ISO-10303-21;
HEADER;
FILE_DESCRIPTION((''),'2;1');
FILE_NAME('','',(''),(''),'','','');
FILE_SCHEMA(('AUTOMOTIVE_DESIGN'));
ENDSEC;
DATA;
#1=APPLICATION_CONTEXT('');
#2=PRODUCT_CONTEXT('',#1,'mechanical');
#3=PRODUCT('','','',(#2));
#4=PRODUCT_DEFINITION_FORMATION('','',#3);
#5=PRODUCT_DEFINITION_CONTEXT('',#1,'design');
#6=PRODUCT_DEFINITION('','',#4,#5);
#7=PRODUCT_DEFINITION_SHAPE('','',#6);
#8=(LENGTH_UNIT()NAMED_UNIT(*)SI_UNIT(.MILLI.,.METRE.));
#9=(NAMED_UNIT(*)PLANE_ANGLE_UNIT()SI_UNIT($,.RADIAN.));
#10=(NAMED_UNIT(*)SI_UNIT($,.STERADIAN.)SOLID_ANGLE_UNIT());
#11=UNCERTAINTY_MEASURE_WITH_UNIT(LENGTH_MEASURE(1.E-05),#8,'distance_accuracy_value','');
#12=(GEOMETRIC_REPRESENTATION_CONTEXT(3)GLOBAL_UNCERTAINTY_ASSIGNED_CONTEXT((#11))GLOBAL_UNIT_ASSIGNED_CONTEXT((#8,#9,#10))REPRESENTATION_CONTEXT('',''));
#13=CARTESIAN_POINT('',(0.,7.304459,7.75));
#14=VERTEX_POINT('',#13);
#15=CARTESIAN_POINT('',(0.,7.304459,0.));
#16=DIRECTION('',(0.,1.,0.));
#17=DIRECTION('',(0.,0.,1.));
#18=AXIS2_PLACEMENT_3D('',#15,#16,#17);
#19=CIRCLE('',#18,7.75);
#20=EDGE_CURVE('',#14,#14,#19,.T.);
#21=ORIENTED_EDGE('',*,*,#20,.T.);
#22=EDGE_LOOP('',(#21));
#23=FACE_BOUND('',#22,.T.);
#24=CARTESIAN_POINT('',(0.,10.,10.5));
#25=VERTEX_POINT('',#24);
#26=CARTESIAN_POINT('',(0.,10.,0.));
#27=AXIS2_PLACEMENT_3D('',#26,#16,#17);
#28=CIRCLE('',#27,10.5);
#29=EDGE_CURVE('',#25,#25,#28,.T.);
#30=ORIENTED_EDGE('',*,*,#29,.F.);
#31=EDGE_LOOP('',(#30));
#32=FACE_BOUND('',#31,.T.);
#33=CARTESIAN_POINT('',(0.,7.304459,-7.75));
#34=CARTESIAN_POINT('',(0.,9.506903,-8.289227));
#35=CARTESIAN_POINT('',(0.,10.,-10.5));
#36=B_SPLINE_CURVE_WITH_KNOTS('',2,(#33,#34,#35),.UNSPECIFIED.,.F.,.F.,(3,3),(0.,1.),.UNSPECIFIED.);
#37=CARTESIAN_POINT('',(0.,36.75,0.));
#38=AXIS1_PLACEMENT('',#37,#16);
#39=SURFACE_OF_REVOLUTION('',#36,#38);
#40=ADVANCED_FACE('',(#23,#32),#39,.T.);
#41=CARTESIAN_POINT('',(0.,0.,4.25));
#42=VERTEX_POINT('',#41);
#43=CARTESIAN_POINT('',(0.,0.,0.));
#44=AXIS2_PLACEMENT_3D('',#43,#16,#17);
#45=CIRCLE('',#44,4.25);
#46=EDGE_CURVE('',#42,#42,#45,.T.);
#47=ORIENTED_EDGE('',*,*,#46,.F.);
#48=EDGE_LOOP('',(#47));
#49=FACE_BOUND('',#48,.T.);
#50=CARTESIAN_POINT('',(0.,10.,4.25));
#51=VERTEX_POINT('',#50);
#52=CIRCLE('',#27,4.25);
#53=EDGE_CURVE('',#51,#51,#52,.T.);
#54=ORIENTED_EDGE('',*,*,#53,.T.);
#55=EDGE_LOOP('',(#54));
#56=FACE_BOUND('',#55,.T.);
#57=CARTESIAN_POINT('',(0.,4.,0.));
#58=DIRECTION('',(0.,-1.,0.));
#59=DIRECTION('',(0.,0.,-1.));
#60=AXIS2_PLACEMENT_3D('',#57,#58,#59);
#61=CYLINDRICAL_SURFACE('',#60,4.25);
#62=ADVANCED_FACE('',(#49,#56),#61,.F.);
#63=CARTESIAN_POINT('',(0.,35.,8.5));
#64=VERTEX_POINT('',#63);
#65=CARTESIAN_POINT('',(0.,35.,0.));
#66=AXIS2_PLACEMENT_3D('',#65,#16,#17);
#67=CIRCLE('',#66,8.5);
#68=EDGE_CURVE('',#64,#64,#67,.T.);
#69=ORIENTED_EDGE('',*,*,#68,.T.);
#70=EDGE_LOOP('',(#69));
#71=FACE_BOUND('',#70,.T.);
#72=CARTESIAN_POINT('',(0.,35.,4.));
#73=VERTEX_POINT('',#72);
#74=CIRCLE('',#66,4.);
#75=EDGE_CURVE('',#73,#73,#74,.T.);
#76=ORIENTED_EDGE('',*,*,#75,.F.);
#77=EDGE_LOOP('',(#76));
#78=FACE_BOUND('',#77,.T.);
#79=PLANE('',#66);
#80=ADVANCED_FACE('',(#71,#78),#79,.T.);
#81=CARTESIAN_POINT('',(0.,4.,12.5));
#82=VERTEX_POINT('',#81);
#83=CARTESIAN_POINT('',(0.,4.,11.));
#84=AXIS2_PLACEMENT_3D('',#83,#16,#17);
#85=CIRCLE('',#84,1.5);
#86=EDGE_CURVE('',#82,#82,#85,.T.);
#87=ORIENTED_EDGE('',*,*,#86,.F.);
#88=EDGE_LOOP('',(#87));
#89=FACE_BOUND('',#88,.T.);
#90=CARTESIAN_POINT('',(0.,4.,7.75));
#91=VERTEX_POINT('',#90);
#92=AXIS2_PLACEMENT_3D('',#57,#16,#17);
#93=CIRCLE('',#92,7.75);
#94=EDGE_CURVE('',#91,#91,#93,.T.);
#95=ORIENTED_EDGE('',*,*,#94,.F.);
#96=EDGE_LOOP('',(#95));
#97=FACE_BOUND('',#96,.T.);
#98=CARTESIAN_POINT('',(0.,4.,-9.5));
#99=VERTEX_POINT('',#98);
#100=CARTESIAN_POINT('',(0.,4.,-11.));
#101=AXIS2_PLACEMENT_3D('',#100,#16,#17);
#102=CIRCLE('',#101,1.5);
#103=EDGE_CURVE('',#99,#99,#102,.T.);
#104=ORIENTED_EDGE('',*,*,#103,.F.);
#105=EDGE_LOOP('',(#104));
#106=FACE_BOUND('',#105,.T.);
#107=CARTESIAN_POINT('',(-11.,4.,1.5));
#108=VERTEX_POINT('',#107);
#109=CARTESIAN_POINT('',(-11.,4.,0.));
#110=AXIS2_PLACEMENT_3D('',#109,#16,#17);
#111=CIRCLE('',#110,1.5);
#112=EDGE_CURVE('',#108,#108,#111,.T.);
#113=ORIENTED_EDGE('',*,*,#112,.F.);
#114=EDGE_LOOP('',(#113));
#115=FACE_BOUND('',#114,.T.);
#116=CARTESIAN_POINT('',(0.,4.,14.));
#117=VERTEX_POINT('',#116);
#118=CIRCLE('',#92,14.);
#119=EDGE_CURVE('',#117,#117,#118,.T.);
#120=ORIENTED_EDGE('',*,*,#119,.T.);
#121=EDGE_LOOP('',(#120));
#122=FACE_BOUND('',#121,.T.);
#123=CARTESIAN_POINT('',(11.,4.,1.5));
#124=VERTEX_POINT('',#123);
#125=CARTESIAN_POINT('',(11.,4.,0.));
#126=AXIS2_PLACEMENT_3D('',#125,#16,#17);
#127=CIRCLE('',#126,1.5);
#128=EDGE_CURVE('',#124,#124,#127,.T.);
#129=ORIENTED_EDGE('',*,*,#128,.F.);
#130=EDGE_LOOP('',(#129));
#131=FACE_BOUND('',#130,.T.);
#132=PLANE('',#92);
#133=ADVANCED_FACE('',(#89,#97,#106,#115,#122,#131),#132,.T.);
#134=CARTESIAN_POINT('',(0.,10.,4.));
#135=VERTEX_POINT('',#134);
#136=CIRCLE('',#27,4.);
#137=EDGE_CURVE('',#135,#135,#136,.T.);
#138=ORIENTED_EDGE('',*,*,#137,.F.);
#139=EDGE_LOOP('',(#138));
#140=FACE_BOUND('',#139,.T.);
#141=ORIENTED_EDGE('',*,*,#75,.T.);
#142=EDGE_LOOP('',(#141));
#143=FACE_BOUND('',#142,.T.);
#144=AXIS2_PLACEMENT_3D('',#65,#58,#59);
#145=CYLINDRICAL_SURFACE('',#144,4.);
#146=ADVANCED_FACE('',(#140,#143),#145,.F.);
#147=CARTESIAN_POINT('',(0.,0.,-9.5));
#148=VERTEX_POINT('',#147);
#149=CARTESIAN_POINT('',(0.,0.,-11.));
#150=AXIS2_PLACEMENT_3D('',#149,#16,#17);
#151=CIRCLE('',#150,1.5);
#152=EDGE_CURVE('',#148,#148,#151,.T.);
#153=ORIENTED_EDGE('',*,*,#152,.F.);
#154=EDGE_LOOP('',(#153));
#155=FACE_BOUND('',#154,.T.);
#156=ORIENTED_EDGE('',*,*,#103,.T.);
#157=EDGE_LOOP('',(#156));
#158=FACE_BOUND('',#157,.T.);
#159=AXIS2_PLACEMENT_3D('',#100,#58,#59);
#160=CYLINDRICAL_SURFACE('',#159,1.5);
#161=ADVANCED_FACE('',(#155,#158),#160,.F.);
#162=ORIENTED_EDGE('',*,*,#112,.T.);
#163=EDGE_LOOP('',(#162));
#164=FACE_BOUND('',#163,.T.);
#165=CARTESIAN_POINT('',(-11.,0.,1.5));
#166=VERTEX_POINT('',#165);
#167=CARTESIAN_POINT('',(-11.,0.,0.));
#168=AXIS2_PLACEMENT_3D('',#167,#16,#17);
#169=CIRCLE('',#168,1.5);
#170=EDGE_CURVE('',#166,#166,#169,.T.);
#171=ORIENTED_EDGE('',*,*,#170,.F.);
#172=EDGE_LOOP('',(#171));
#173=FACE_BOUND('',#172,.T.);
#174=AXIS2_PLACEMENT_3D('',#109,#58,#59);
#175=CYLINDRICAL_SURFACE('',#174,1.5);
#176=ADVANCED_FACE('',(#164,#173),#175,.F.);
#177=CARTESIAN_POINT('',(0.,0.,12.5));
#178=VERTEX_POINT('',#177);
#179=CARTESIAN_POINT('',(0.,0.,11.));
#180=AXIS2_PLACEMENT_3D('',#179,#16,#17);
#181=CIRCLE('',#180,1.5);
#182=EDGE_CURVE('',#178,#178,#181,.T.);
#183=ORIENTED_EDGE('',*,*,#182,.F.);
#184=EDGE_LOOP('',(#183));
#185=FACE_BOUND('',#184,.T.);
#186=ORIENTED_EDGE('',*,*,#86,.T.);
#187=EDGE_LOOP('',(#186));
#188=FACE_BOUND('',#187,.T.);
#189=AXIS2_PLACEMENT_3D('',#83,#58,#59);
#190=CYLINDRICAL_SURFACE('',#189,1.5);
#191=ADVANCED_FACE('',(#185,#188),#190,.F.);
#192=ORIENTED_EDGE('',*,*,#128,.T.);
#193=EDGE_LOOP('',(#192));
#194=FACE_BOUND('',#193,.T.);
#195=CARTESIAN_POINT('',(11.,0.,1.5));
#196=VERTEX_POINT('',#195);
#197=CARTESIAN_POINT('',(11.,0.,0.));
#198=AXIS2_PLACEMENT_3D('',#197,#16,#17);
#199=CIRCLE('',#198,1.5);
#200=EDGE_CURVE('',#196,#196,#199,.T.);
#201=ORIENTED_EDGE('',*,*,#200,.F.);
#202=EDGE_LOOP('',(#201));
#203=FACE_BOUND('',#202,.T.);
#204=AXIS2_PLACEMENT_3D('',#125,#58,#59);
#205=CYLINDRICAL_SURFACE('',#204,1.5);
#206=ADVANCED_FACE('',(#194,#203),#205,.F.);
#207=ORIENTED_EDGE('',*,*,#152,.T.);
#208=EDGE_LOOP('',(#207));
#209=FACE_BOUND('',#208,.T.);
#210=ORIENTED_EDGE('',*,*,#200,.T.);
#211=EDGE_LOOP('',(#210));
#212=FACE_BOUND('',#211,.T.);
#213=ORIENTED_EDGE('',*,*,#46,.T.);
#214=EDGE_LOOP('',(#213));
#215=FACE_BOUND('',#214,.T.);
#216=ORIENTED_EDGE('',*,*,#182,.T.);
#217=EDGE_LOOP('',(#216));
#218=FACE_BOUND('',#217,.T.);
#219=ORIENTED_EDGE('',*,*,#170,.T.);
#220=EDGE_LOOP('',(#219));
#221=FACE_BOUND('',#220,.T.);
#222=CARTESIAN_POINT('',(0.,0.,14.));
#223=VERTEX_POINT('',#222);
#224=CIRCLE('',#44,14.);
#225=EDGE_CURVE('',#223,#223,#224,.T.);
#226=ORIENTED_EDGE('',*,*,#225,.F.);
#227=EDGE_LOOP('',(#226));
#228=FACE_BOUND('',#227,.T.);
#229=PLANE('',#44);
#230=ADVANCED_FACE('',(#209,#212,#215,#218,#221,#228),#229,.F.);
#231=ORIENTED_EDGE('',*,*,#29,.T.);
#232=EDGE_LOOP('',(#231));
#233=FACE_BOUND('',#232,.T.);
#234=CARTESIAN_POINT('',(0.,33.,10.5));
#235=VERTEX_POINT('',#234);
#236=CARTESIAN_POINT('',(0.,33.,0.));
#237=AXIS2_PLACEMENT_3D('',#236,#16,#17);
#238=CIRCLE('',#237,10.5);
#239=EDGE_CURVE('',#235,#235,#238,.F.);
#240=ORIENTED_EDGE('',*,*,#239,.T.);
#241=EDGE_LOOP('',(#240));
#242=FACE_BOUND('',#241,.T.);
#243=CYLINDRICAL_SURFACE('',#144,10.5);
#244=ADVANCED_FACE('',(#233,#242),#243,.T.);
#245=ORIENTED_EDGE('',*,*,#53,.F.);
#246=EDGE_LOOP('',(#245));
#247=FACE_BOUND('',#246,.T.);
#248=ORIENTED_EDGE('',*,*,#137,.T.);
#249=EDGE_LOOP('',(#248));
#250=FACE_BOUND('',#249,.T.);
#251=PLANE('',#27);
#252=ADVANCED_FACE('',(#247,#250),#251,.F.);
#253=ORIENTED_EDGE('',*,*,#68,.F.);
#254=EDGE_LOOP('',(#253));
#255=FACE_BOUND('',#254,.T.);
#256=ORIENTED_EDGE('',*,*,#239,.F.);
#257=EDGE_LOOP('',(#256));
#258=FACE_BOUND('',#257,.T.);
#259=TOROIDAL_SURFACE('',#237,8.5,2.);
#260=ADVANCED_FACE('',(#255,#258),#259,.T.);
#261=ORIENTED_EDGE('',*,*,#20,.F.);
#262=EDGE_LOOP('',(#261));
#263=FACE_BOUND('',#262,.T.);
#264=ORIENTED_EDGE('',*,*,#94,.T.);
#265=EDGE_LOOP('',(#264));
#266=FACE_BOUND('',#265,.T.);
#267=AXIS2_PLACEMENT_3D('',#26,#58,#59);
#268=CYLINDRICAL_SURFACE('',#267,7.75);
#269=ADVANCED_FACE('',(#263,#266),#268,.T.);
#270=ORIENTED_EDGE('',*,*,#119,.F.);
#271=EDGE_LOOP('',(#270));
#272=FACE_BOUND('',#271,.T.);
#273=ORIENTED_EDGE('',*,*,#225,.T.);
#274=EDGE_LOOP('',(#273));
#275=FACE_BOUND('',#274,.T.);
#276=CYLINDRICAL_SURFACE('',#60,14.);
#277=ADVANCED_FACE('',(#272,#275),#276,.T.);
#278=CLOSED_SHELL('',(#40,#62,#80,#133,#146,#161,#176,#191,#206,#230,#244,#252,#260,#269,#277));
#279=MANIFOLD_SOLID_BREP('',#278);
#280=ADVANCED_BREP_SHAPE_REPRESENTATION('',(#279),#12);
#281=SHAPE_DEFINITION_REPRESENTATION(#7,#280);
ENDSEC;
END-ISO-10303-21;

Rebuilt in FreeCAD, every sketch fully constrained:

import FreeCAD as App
import Part
import Sketcher

V = App.Vector


def edges_at(feature, points):
    """Names of the edges that pass closest to the given points."""
    edges = feature.Shape.Edges
    near = lambda p: min(range(len(edges)), key=lambda i: edges[i].distToShape(Part.Vertex(*p))[0])
    return sorted({f"Edge{near(p) + 1}" for p in points})

doc = App.newDocument("Part")
params = doc.addObject("Spreadsheet::Sheet", "Params")
for row, (alias, value) in enumerate([
    ("sketch1_diameter", "28 mm"),
    ("sketch1_diameter2", "3 mm"),
    ("sketch1_diameter3", "8.5 mm"),
    ("pad1_length", "4 mm"),
    ("sketch2_diameter", "15.5 mm"),
    ("sketch2_diameter2", "8.5 mm"),
    ("pad2_length", "6 mm"),
    ("sketch3_diameter", "21 mm"),
    ("sketch3_diameter2", "8 mm"),
    ("pad3_length", "25 mm"),
    ("revolution_angle", "360 deg"),
    ("fillet_radius", "2 mm"),
], start=1):
    params.set(f"A{row}", alias)
    params.set(f"B{row}", "=" + value)
    params.setAlias(f"B{row}", alias)

body = doc.addObject("PartDesign::Body", "Body")

# Sketch on XZ plane
sketch1 = body.newObject("Sketcher::SketchObject", "Sketch")
sketch1.AttachmentSupport = (doc.getObject("XZ_Plane"), [""])
sketch1.MapMode = "FlatFace"
sketch1.addGeometry([
    Part.Circle(V(0, 0, 0), V(0, 0, 1), 14),  # 0
    Part.Circle(V(0, 11, 0), V(0, 0, 1), 1.5),  # 1
    Part.Circle(V(-11, 0, 0), V(0, 0, 1), 1.5),  # 2
    Part.Circle(V(0, 0, 0), V(0, 0, 1), 4.2),  # 3
    Part.Circle(V(11, 0, 0), V(0, 0, 1), 1.5),  # 4
    Part.Circle(V(0, -11, 0), V(0, 0, 1), 1.5),  # 5
], False)
sketch1.addConstraint([
    Sketcher.Constraint("Coincident", 0, 3, -1, 1),
    Sketcher.Constraint("Coincident", 3, 3, -1, 1),
    Sketcher.Constraint("Equal", 1, 2),
    Sketcher.Constraint("Equal", 2, 4),
    Sketcher.Constraint("Equal", 4, 5),
    Sketcher.Constraint("Symmetric", 2, 3, 4, 3, -1, 1),
    Sketcher.Constraint("Symmetric", 1, 3, 5, 3, -1, 1),
    Sketcher.Constraint("PointOnObject", 1, 3, -2),
    Sketcher.Constraint("PointOnObject", 2, 3, -1),
    Sketcher.Constraint("Diameter", 0, 28.0),
    Sketcher.Constraint("Diameter", 1, 3.0),
    Sketcher.Constraint("Diameter", 3, 8.5),
    Sketcher.Constraint("DistanceY", -1, 1, 1, 3, 11.0),
    Sketcher.Constraint("DistanceX", 2, 3, -1, 1, 11.0),
])
sketch1.setExpression("Constraints[9]", "Params.sketch1_diameter")
sketch1.setExpression("Constraints[10]", "Params.sketch1_diameter2")
sketch1.setExpression("Constraints[11]", "Params.sketch1_diameter3")
pad1 = body.newObject("PartDesign::Pad", "Pad")
pad1.Profile = sketch1
pad1.setExpression("Length", "Params.pad1_length")
pad1.Reversed = True

# Sketch on XZ plane
sketch2 = body.newObject("Sketcher::SketchObject", "Sketch001")
sketch2.AttachmentSupport = (doc.getObject("XZ_Plane"), [""])
sketch2.MapMode = "FlatFace"
sketch2.AttachmentOffset = App.Placement(V(0, 0, -4), App.Rotation())
sketch2.addGeometry([
    Part.Circle(V(0, 0, 0), V(0, 0, 1), 7.8),
    Part.Circle(V(0, 0, 0), V(0, 0, 1), 4.2),
], False)
sketch2.addConstraint([
    Sketcher.Constraint("Coincident", 0, 3, -1, 1),
    Sketcher.Constraint("Coincident", 1, 3, -1, 1),
    Sketcher.Constraint("Diameter", 0, 15.5),
    Sketcher.Constraint("Diameter", 1, 8.5),
])
sketch2.setExpression("Constraints[2]", "Params.sketch2_diameter")
sketch2.setExpression("Constraints[3]", "Params.sketch2_diameter2")
pad2 = body.newObject("PartDesign::Pad", "Pad001")
pad2.Profile = sketch2
pad2.setExpression("Length", "Params.pad2_length")
pad2.Reversed = True
body2 = doc.addObject("PartDesign::Body", "Body001")

# Sketch on XZ plane
sketch3 = body2.newObject("Sketcher::SketchObject", "Sketch002")
sketch3.AttachmentSupport = (doc.getObject("XZ_Plane001"), [""])
sketch3.MapMode = "FlatFace"
sketch3.AttachmentOffset = App.Placement(V(0, 0, -10), App.Rotation())
sketch3.addGeometry([
    Part.Circle(V(0, 0, 0), V(0, 0, 1), 10.5),
    Part.Circle(V(0, 0, 0), V(0, 0, 1), 4),
], False)
sketch3.addConstraint([
    Sketcher.Constraint("Coincident", 0, 3, -1, 1),
    Sketcher.Constraint("Coincident", 1, 3, -1, 1),
    Sketcher.Constraint("Diameter", 0, 21.0),
    Sketcher.Constraint("Diameter", 1, 8.0),
])
sketch3.setExpression("Constraints[2]", "Params.sketch3_diameter")
sketch3.setExpression("Constraints[3]", "Params.sketch3_diameter2")
pad3 = body2.newObject("PartDesign::Pad", "Pad002")
pad3.Profile = sketch3
pad3.setExpression("Length", "Params.pad3_length")
pad3.Reversed = True
doc.recompute()

boolean = body.newObject("PartDesign::Boolean", "Boolean")
boolean.Type = "Fuse"
boolean.addObjects([body2])

# Sketch on YZ plane
sketch4 = body.newObject("Sketcher::SketchObject", "Sketch003")
sketch4.AttachmentSupport = (doc.getObject("YZ_Plane"), [""])
sketch4.MapMode = "FlatFace"
sketch4.addGeometry([
    Part.LineSegment(V(10, -10.5, 0), V(10, -7.75, 0)),
    Part.LineSegment(V(10, -7.75, 0), V(7.304459, -7.75, 0)),
    Part.BSplineCurve([V(10, -10.5, 0), V(9.506903, -8.289227, 0), V(7.304459, -7.75, 0)], [3, 3], [0, 1], False, 2, [1, 1, 1], False),
], False)
sketch4.addConstraint([
    Sketcher.Constraint("Block", 2),
    Sketcher.Constraint("Coincident", 0, 2, 1, 1),
    Sketcher.Constraint("Coincident", 1, 2, 2, 2),
    Sketcher.Constraint("Coincident", 2, 1, 0, 1),
    Sketcher.Constraint("Vertical", 0),
    Sketcher.Constraint("Horizontal", 1),
])
revolution = body.newObject("PartDesign::Revolution", "Revolution")
revolution.Profile = sketch4
revolution.ReferenceAxis = (sketch4, ["H_Axis"])
revolution.setExpression("Angle", "Params.revolution_angle")
doc.recompute()

fillet = body.newObject("PartDesign::Fillet", "Fillet")
fillet.Base = (revolution, edges_at(revolution, [(-10.5, 35, 0)]))
fillet.setExpression("Radius", "Params.fillet_radius")

doc.recompute()
